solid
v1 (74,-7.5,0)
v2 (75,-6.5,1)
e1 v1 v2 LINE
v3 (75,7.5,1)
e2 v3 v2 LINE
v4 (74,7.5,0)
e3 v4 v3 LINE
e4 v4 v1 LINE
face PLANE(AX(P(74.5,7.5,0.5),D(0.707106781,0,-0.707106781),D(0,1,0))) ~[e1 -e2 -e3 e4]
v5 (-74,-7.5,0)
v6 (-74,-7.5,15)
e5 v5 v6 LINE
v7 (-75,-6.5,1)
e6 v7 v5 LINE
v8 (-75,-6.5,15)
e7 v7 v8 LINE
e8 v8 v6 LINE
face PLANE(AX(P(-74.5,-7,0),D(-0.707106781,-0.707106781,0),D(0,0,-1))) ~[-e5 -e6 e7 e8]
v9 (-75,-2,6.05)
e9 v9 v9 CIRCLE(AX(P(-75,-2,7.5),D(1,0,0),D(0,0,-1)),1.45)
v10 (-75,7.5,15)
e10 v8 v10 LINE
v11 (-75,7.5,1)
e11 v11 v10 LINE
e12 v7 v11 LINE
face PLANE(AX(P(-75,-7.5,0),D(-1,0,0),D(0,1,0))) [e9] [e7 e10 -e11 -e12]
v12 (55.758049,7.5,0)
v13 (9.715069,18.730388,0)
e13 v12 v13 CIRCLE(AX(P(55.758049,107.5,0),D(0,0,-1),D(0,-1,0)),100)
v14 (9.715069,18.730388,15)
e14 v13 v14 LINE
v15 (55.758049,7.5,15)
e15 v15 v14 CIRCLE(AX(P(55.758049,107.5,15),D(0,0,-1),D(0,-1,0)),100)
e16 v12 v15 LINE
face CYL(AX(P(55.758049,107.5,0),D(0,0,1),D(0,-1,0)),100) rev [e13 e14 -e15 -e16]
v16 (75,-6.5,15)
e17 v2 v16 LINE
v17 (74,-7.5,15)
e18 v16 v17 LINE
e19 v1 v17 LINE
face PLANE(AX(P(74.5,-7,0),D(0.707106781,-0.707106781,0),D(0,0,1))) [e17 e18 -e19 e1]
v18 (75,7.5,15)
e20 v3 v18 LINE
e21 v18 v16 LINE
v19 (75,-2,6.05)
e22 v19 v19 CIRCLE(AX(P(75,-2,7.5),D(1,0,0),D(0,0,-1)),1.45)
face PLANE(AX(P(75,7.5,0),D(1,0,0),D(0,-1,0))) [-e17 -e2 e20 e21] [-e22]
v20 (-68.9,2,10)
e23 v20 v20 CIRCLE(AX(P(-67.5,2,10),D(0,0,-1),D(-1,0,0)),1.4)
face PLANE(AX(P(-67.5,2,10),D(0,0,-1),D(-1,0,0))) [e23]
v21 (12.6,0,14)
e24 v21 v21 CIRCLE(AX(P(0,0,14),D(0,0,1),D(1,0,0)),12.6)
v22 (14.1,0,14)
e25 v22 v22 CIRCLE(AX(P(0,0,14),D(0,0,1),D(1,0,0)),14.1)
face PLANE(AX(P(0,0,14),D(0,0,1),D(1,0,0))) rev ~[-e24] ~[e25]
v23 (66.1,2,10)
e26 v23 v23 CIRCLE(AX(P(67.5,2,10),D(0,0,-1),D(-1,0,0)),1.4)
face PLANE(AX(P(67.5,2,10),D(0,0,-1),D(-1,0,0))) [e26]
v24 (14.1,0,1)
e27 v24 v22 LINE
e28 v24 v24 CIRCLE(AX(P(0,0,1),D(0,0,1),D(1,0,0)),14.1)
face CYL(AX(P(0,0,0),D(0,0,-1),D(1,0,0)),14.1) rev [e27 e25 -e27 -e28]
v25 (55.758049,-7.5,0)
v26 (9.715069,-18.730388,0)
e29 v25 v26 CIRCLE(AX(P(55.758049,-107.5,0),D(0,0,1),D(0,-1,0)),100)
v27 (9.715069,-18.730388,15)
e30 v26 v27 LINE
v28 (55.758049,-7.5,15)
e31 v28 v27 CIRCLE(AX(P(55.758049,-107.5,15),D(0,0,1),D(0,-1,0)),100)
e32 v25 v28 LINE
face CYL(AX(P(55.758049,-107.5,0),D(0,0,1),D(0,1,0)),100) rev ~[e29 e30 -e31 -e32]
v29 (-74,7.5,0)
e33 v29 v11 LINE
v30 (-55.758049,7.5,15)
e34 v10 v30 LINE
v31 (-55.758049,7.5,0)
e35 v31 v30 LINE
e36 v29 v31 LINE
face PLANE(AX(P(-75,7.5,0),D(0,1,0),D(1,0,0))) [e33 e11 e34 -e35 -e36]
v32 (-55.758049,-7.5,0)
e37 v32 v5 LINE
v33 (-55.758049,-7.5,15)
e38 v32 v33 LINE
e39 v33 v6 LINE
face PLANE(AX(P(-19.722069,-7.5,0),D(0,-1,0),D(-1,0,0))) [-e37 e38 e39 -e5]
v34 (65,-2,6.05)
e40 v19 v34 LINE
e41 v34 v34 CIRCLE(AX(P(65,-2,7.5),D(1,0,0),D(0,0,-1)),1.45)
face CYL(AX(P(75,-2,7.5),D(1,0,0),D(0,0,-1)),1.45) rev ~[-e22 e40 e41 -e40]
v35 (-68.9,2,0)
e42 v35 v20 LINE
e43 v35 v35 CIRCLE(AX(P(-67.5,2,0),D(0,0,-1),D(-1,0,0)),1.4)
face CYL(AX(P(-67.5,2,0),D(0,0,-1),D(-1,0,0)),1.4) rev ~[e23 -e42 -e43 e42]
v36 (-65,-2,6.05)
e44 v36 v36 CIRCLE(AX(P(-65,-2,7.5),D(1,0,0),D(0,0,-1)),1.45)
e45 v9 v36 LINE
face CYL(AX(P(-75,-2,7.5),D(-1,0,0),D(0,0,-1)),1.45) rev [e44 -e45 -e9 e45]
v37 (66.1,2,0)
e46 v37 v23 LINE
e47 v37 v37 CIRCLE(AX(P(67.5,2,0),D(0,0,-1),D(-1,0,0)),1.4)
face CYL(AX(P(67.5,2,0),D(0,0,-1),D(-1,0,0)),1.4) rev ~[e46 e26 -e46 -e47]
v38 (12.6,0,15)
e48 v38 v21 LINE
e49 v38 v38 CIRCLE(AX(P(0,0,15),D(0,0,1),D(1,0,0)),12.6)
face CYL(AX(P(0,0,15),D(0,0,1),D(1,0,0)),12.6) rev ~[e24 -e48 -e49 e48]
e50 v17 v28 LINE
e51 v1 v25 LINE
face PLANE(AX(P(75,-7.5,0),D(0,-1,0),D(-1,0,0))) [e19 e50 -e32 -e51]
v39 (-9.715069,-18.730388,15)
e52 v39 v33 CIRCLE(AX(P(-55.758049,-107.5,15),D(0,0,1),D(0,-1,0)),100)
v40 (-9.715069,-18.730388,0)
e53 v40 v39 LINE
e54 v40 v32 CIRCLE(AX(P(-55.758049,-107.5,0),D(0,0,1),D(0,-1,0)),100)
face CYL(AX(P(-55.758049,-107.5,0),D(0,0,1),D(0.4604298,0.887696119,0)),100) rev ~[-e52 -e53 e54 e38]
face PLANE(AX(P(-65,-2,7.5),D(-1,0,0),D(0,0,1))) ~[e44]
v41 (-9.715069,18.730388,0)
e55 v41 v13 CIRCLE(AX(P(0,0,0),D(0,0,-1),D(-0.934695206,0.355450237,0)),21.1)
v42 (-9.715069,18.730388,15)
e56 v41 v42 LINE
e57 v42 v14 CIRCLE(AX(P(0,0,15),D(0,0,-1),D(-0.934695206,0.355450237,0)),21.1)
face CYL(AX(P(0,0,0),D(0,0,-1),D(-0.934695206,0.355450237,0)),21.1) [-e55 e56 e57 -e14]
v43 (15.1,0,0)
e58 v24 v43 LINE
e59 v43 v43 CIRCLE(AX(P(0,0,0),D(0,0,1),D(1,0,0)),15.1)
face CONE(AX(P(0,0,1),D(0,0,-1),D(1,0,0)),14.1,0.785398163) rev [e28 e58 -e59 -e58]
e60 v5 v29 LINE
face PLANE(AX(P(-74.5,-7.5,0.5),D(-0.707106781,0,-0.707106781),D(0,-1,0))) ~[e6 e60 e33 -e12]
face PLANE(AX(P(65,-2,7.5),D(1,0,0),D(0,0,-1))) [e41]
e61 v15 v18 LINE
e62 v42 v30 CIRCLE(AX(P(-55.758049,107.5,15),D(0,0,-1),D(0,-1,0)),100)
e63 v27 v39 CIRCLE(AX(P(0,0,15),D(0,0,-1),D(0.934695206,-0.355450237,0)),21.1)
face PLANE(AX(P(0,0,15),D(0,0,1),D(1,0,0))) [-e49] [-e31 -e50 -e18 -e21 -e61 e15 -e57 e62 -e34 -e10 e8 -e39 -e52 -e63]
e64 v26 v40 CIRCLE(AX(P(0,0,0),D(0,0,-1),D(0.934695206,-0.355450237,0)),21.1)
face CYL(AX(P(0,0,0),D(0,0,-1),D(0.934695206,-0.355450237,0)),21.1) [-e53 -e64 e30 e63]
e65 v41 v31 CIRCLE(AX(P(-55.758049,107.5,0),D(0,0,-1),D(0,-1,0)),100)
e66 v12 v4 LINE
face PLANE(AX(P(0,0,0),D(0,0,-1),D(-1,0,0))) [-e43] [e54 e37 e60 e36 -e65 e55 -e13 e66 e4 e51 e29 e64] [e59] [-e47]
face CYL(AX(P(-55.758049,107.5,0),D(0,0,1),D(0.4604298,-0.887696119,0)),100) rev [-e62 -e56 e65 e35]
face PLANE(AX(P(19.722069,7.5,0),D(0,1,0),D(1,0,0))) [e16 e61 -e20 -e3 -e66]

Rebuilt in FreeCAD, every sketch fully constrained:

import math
import FreeCAD as App
import Part
import Sketcher
from FreeCAD import Vector


def edges_at(feature, points):
    """Names of the edges that pass closest to the given points."""
    edges = feature.Shape.Edges
    near = lambda p: min(range(len(edges)), key=lambda i: edges[i].distToShape(Part.Vertex(*p))[0])
    return sorted({f"Edge{near(p) + 1}" for p in points})

doc = App.newDocument("Part")
body = doc.addObject("PartDesign::Body", "Body")

sketch1 = doc.addObject("Sketcher::SketchObject", "Sketch")
body.addObject(sketch1)
sketch1.AttachmentSupport = (doc.XY_Plane, [""])
sketch1.MapMode = "FlatFace"
sketch1.addGeometry([
    Part.LineSegment(Vector(75, 8, 0), Vector(20, 8, 0)),
    Part.ArcOfCircle(Part.Circle(Vector(0, 0, 0), Vector(0, 0, 1), 21), math.radians(21), math.radians(159)),
    Part.LineSegment(Vector(-20, 8, 0), Vector(-75, 8, 0)),
    Part.LineSegment(Vector(-75, 8, 0), Vector(-75, -8, 0)),
    Part.LineSegment(Vector(-75, -8, 0), Vector(-20, -8, 0)),
    Part.ArcOfCircle(Part.Circle(Vector(0, 0, 0), Vector(0, 0, 1), 21), math.radians(-159), math.radians(-21)),
    Part.LineSegment(Vector(20, -8, 0), Vector(75, -8, 0)),
    Part.LineSegment(Vector(75, -8, 0), Vector(75, 8, 0)),
    Part.Circle(Vector(0, 0, 0), Vector(0, 0, 1), 14),
], False)
sketch1.addConstraint([
    Sketcher.Constraint("Coincident", 0, 2, 1, 1),
    Sketcher.Constraint("Coincident", 1, 2, 2, 1),
    Sketcher.Constraint("Coincident", 2, 2, 3, 1),
    Sketcher.Constraint("Coincident", 3, 2, 4, 1),
    Sketcher.Constraint("Coincident", 4, 2, 5, 1),
    Sketcher.Constraint("Coincident", 5, 2, 6, 1),
    Sketcher.Constraint("Coincident", 6, 2, 7, 1),
    Sketcher.Constraint("Coincident", 7, 2, 0, 1),
    Sketcher.Constraint("Horizontal", 0),
    Sketcher.Constraint("Horizontal", 2),
    Sketcher.Constraint("Vertical", 3),
    Sketcher.Constraint("Horizontal", 4),
    Sketcher.Constraint("Horizontal", 6),
    Sketcher.Constraint("Vertical", 7),
    Sketcher.Constraint("Coincident", 1, 3, -1, 1),
    Sketcher.Constraint("Coincident", 5, 3, -1, 1),
    Sketcher.Constraint("Coincident", 8, 3, -1, 1),
    Sketcher.Constraint("Equal", 1, 5),
    Sketcher.Constraint("Symmetric", 2, 2, 6, 2, -1, 1),
    Sketcher.Constraint("Horizontal", 0, 2, 1, 2),
    Sketcher.Constraint("Horizontal", 4, 2, 5, 2),
    Sketcher.Constraint("Diameter", 8, 28.2),
    Sketcher.Constraint("Radius", 1, 21.1),
    Sketcher.Constraint("DistanceY", 3, 2, 3, 1, 15.0),
    Sketcher.Constraint("DistanceX", 2, 2, -1, 1, 75.0),
])
pad1 = doc.addObject("PartDesign::Pad", "Pad")
body.addObject(pad1)
pad1.Profile = sketch1
pad1.Length = 15
doc.recompute()

fillet = doc.addObject("PartDesign::Fillet", "Fillet")
body.addObject(fillet)
fillet.Base = (pad1, edges_at(pad1, [
    (19.722, -7.5, 7.5),
    (-19.722, -7.5, 7.5),
    (-19.722, 7.5, 7.5),
    (19.722, 7.5, 7.5),
]))
fillet.Radius = 100

sketch2 = doc.addObject("Sketcher::SketchObject", "Sketch001")
body.addObject(sketch2)
sketch2.AttachmentSupport = (doc.XY_Plane, [""])
sketch2.MapMode = "FlatFace"
sketch2.addGeometry([
    Part.Circle(Vector(67.5, 2, 0), Vector(0, 0, 1), 1.4),
    Part.Circle(Vector(-67.5, 2, 0), Vector(0, 0, 1), 1.4),
], False)
sketch2.addConstraint([
    Sketcher.Constraint("Equal", 0, 1),
    Sketcher.Constraint("Symmetric", 0, 3, 1, 3, -2),
    Sketcher.Constraint("Diameter", 0, 2.8),
    Sketcher.Constraint("DistanceY", -1, 1, 0, 3, 2.0),
    Sketcher.Constraint("DistanceX", 1, 3, 0, 3, 135.0),
])
pocket1 = doc.addObject("PartDesign::Pocket", "Pocket")
body.addObject(pocket1)
pocket1.Profile = sketch2
pocket1.Length = 10
pocket1.Reversed = True

sketch3 = doc.addObject("Sketcher::SketchObject", "Sketch002")
body.addObject(sketch3)
sketch3.AttachmentSupport = (doc.YZ_Plane, [""])
sketch3.MapMode = "FlatFace"
sketch3.AttachmentOffset = App.Placement(Vector(0, 0, 75), App.Rotation())
sketch3.addGeometry(Part.Circle(Vector(-2, 7.5, 0), Vector(0, 0, 1), 1.4), False)
sketch3.addConstraint([
    Sketcher.Constraint("Diameter", 0, 2.9),
    Sketcher.Constraint("DistanceX", 0, 3, -1, 1, 2.0),
    Sketcher.Constraint("DistanceY", -1, 1, 0, 3, 7.5),
])
pocket2 = doc.addObject("PartDesign::Pocket", "Pocket001")
body.addObject(pocket2)
pocket2.Profile = sketch3
pocket2.Length = 10
doc.recompute()

mirrored = doc.addObject("PartDesign::Mirrored", "Mirrored")
body.addObject(mirrored)
mirrored.Originals = [pocket2]
mirrored.MirrorPlane = (doc.YZ_Plane, [""])
body.Tip = mirrored

sketch4 = doc.addObject("Sketcher::SketchObject", "Sketch003")
body.addObject(sketch4)
sketch4.AttachmentSupport = (doc.XY_Plane, [""])
sketch4.MapMode = "FlatFace"
sketch4.AttachmentOffset = App.Placement(Vector(0, 0, 15), App.Rotation())
sketch4.addGeometry([
    Part.Circle(Vector(0, 0, 0), Vector(0, 0, 1), 14),
    Part.Circle(Vector(0, 0, 0), Vector(0, 0, 1), 13),
], False)
sketch4.addConstraint([
    Sketcher.Constraint("Coincident", 0, 3, -1, 1),
    Sketcher.Constraint("Coincident", 1, 3, -1, 1),
    Sketcher.Constraint("Diameter", 0, 28.2),
    Sketcher.Constraint("Diameter", 1, 25.2),
])
pad2 = doc.addObject("PartDesign::Pad", "Pad001")
body.addObject(pad2)
pad2.Profile = sketch4
pad2.Length = 1
pad2.Reversed = True
doc.recompute()

chamfer = doc.addObject("PartDesign::Chamfer", "Chamfer")
body.addObject(chamfer)
chamfer.Base = (pad2, edges_at(pad2, [(-14.1, 0, 0)]))
chamfer.Size = 1
doc.recompute()

chamfer2 = doc.addObject("PartDesign::Chamfer", "Chamfer001")
body.addObject(chamfer2)
chamfer2.Base = (chamfer, edges_at(chamfer, [
    (75, 0, 0),
    (75, -7.5, 7.5),
    (-75, -7.5, 7.5),
    (-75, 0, 0),
]))
chamfer2.Size = 1

doc.recompute()
